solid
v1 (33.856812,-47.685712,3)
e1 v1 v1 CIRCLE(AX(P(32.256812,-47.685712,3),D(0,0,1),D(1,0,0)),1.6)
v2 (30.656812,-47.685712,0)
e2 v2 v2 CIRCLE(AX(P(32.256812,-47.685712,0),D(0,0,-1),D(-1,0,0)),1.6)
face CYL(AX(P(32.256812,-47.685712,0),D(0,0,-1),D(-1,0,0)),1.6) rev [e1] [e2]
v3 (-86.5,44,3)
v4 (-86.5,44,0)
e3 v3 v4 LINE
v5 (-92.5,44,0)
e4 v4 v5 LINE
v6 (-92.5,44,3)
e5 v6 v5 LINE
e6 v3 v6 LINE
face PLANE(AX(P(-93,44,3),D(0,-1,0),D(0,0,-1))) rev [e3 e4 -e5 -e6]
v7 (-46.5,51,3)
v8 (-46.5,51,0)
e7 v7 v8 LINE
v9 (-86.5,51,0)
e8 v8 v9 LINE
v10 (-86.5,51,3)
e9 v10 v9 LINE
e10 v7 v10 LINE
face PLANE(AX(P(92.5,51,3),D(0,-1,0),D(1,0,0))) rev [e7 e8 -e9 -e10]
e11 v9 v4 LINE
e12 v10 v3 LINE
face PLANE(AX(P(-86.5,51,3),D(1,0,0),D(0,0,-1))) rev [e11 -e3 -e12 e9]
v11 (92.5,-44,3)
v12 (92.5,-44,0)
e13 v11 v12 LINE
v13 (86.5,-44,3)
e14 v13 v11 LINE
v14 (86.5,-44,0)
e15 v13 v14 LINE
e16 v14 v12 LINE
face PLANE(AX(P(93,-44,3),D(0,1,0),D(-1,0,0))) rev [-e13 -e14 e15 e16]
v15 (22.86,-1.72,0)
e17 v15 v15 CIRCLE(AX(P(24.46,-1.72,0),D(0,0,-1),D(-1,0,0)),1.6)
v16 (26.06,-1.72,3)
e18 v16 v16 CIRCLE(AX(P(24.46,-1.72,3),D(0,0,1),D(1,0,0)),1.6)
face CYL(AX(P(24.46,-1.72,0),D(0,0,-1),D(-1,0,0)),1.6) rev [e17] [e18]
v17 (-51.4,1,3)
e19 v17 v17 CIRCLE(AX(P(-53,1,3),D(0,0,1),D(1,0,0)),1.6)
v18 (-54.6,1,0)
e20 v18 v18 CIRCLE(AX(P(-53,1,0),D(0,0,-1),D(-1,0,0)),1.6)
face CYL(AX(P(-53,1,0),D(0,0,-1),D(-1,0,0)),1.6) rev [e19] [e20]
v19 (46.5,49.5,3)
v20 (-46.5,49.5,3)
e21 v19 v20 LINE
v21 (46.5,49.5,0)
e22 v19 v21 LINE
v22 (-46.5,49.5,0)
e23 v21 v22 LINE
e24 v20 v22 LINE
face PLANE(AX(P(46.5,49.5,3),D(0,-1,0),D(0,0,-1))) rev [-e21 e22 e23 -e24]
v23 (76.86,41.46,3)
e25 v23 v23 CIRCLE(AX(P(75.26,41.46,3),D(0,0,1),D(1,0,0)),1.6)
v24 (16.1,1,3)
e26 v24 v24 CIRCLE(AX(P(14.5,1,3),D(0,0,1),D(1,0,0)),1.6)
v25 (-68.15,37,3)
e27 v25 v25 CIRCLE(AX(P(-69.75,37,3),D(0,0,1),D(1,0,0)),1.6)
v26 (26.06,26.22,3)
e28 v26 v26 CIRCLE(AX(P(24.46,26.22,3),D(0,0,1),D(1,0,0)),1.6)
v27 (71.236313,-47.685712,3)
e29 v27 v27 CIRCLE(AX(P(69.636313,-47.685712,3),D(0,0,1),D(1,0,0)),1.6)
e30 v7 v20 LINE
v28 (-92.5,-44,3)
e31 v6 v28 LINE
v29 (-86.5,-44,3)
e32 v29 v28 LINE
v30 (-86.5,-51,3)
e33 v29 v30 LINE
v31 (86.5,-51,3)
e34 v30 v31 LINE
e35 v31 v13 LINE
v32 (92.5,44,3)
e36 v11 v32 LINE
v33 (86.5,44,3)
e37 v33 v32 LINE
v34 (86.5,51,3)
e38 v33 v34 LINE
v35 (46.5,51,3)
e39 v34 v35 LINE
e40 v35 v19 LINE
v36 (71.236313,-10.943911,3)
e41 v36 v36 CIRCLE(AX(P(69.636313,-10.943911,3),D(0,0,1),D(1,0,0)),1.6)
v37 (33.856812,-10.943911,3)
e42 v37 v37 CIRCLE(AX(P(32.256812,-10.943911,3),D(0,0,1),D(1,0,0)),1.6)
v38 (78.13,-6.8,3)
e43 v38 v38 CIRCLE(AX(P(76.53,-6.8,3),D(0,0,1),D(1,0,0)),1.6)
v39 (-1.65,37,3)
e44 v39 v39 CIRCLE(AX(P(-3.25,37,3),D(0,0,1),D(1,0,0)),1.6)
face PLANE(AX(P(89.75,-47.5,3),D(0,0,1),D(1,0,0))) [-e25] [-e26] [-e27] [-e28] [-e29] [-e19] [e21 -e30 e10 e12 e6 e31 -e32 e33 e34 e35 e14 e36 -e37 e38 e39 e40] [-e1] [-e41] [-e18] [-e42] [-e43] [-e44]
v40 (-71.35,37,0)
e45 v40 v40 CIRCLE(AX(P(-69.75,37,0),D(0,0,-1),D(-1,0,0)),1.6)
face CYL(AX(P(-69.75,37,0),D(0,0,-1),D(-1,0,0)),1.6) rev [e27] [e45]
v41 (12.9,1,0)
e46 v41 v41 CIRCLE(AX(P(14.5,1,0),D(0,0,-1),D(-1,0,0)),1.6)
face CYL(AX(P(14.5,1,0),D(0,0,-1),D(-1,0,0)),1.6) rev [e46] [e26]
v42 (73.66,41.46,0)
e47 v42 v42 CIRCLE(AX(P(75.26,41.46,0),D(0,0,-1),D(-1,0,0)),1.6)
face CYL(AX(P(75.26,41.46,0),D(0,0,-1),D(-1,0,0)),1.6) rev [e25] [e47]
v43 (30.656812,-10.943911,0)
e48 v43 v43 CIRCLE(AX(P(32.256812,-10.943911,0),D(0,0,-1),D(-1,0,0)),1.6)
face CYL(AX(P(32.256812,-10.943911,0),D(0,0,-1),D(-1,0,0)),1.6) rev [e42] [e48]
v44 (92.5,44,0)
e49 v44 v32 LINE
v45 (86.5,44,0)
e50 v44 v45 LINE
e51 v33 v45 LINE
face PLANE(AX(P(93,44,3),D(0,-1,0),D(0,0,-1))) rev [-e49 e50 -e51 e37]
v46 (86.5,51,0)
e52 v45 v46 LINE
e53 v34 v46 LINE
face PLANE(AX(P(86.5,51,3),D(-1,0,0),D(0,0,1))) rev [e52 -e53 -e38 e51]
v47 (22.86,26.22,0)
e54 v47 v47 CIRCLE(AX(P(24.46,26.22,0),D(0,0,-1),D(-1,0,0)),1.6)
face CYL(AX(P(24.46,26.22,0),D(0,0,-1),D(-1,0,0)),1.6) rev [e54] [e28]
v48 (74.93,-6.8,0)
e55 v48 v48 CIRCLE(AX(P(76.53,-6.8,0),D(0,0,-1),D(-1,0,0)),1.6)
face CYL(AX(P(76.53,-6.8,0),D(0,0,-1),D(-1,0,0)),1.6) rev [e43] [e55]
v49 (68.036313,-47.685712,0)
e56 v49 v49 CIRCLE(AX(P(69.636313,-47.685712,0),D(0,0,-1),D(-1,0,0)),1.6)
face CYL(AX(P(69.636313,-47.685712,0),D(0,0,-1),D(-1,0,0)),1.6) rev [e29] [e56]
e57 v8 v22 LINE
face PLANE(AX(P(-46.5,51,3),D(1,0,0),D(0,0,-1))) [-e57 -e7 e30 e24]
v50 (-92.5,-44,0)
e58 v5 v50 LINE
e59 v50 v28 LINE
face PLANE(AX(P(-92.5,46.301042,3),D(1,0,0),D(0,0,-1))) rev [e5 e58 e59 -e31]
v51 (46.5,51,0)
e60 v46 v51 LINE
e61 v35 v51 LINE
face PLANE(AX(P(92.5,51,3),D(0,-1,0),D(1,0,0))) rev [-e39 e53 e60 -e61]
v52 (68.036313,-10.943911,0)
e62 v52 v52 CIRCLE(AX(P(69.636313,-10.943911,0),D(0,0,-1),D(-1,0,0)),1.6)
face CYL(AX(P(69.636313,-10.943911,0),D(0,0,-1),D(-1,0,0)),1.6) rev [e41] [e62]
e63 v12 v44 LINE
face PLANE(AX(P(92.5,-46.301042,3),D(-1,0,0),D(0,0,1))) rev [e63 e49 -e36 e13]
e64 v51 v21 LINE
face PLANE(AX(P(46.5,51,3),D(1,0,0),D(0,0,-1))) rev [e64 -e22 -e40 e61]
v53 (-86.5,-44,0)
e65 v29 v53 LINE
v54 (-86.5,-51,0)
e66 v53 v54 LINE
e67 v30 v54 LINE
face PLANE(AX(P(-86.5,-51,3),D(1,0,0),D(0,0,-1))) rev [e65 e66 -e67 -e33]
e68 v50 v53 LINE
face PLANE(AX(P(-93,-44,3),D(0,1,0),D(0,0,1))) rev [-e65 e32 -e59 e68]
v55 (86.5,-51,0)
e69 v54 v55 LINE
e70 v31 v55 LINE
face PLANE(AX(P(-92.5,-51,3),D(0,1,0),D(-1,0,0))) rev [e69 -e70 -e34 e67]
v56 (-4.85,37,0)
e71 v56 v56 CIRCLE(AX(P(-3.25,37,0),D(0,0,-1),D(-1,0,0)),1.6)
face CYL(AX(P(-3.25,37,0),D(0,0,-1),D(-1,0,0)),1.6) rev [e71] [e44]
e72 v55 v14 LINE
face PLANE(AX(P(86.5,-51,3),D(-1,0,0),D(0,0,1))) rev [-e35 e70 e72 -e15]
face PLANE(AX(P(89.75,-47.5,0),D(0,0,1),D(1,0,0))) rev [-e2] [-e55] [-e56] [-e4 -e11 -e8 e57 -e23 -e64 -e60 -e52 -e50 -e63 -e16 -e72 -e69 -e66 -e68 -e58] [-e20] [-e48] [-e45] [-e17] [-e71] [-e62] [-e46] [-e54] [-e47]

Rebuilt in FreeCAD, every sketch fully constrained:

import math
import FreeCAD as App
import Part
import Sketcher

V = App.Vector
Q = App.Units.Quantity


def add_polygon(sketch, points):
    """Adds a closed chain of lines whose ends are joined by coincident constraints."""
    first, n = sketch.GeometryCount, len(points)
    for a, b in zip(points, points[1:] + points[:1]):
        sketch.addGeometry(Part.LineSegment(App.Vector(*a, 0), App.Vector(*b, 0)), False)
    for i in range(n):
        sketch.addConstraint(Sketcher.Constraint("Coincident", first + i, 2, first + (i + 1) % n, 1))

doc = App.newDocument("Part")
body = doc.addObject("PartDesign::Body", "Body")

# Sketch on XY plane
sketch1 = body.newObject("Sketcher::SketchObject", "Sketch")
sketch1.AttachmentSupport = (doc.getObject("XY_Plane"), [""])
sketch1.MapMode = "FlatFace"
sketch1.addGeometry([
    Part.LineSegment(V(92.5, -51, 0), V(92.5, -48.7, 0)),  # 0
    Part.ArcOfCircle(Part.Circle(V(89.8, -47.5, 0), V(0, 0, 1), 3), math.radians(24), math.radians(336)),  # 1
    Part.LineSegment(V(92.5, -46.3, 0), V(92.5, 46.3, 0)),  # 2
    Part.ArcOfCircle(Part.Circle(V(89.8, 47.5, 0), V(0, 0, 1), 3), math.radians(24), math.radians(336)),  # 3
    Part.LineSegment(V(92.5, 48.7, 0), V(92.5, 51, 0)),  # 4
    Part.LineSegment(V(92.5, 51, 0), V(-92.5, 51, 0)),  # 5
    Part.LineSegment(V(-92.5, 51, 0), V(-92.5, 48.7, 0)),  # 6
    Part.ArcOfCircle(Part.Circle(V(-89.8, 47.5, 0), V(0, 0, 1), 3), math.radians(-156), math.radians(156)),  # 7
    Part.LineSegment(V(-92.5, 46.3, 0), V(-92.5, -46.3, 0)),  # 8
    Part.ArcOfCircle(Part.Circle(V(-89.8, -47.5, 0), V(0, 0, 1), 3), math.radians(-156), math.radians(156)),  # 9
    Part.LineSegment(V(-92.5, -48.7, 0), V(-92.5, -51, 0)),  # 10
    Part.LineSegment(V(-92.5, -51, 0), V(92.5, -51, 0)),  # 11
], False)
sketch1.addConstraint([
    Sketcher.Constraint("Coincident", 0, 2, 1, 2),
    Sketcher.Constraint("Coincident", 1, 1, 2, 1),
    Sketcher.Constraint("Coincident", 2, 2, 3, 2),
    Sketcher.Constraint("Coincident", 3, 1, 4, 1),
    Sketcher.Constraint("Coincident", 4, 2, 5, 1),
    Sketcher.Constraint("Coincident", 5, 2, 6, 1),
    Sketcher.Constraint("Coincident", 6, 2, 7, 2),
    Sketcher.Constraint("Coincident", 7, 1, 8, 1),
    Sketcher.Constraint("Coincident", 8, 2, 9, 2),
    Sketcher.Constraint("Coincident", 9, 1, 10, 1),
    Sketcher.Constraint("Coincident", 10, 2, 11, 1),
    Sketcher.Constraint("Coincident", 11, 2, 0, 1),
    Sketcher.Constraint("Vertical", 0),
    Sketcher.Constraint("Vertical", 2),
    Sketcher.Constraint("Vertical", 4),
    Sketcher.Constraint("Horizontal", 5),
    Sketcher.Constraint("Vertical", 6),
    Sketcher.Constraint("Vertical", 8),
    Sketcher.Constraint("Vertical", 10),
    Sketcher.Constraint("Horizontal", 11),
    Sketcher.Constraint("Equal", 1, 3),
    Sketcher.Constraint("Equal", 3, 7),
    Sketcher.Constraint("Equal", 7, 9),
    Sketcher.Constraint("Symmetric", 1, 3, 7, 3, -1, 1),
    Sketcher.Constraint("Symmetric", 3, 3, 9, 3, -1, 1),
    Sketcher.Constraint("Symmetric", 4, 2, 10, 2, -1, 1),
    Sketcher.Constraint("Symmetric", 3, 3, 7, 3, -2),
    Sketcher.Constraint("Horizontal", 3, 1, 6, 2),
    Sketcher.Constraint("Horizontal", 2, 2, 7, 1),
    Sketcher.Constraint("Horizontal", 0, 2, 9, 1),
    Sketcher.Constraint("Vertical", 0, 2, 1, 1),
    Sketcher.Constraint("Radius", 1, Q("3 mm")),
    Sketcher.Constraint("DistanceX", 5, 2, 5, 1, Q("185 mm")),
    Sketcher.Constraint("DistanceY", -1, 1, 4, 2, Q("51 mm")),
    Sketcher.Constraint("DistanceY", 1, 3, 3, 3, Q("95 mm")),
    Sketcher.Constraint("DistanceX", 7, 3, 3, 3, Q("179.5 mm")),
])
pad1 = body.newObject("PartDesign::Pad", "Pad")
pad1.Profile = sketch1
pad1.Length = 3

# Sketch on XY plane
sketch2 = body.newObject("Sketcher::SketchObject", "Sketch001")
sketch2.AttachmentSupport = (doc.getObject("XY_Plane"), [""])
sketch2.MapMode = "FlatFace"
sketch2.addGeometry([
    Part.Circle(V(76.5, -6.8, 0), V(0, 0, 1), 1.6),  # 0
    Part.Circle(V(24.5, -1.7, 0), V(0, 0, 1), 1.6),  # 1
    Part.Circle(V(24.5, 26.2, 0), V(0, 0, 1), 1.6),  # 2
    Part.Circle(V(75.3, 41.5, 0), V(0, 0, 1), 1.6),  # 3
    Part.Circle(V(69.6, -47.7, 0), V(0, 0, 1), 1.6),  # 4
    Part.Circle(V(69.6, -10.9, 0), V(0, 0, 1), 1.6),  # 5
    Part.Circle(V(32.3, -10.9, 0), V(0, 0, 1), 1.6),  # 6
    Part.Circle(V(32.3, -47.7, 0), V(0, 0, 1), 1.6),  # 7
    Part.Circle(V(14.5, 1, 0), V(0, 0, 1), 1.6),  # 8
    Part.Circle(V(-53, 1, 0), V(0, 0, 1), 1.6),  # 9
    Part.Circle(V(-3.2, 37, 0), V(0, 0, 1), 1.6),  # 10
    Part.Circle(V(-69.8, 37, 0), V(0, 0, 1), 1.6),  # 11
], False)
sketch2.addConstraint([
    Sketcher.Constraint("Equal", 0, 1),
    Sketcher.Constraint("Equal", 1, 2),
    Sketcher.Constraint("Equal", 2, 3),
    Sketcher.Constraint("Equal", 3, 4),
    Sketcher.Constraint("Equal", 4, 5),
    Sketcher.Constraint("Equal", 5, 6),
    Sketcher.Constraint("Equal", 6, 7),
    Sketcher.Constraint("Equal", 7, 8),
    Sketcher.Constraint("Equal", 8, 9),
    Sketcher.Constraint("Equal", 9, 10),
    Sketcher.Constraint("Equal", 10, 11),
    Sketcher.Constraint("Horizontal", 5, 3, 6, 3),
    Sketcher.Constraint("Horizontal", 4, 3, 7, 3),
    Sketcher.Constraint("Horizontal", 8, 3, 9, 3),
    Sketcher.Constraint("Horizontal", 10, 3, 11, 3),
    Sketcher.Constraint("Vertical", 1, 3, 2, 3),
    Sketcher.Constraint("Vertical", 4, 3, 5, 3),
    Sketcher.Constraint("Vertical", 6, 3, 7, 3),
    Sketcher.Constraint("Diameter", 0, Q("3.2 mm")),
    Sketcher.Constraint("DistanceY", -1, 1, 8, 3, Q("1 mm")),
    Sketcher.Constraint("DistanceX", 9, 3, -1, 1, Q("53 mm")),
    Sketcher.Constraint("DistanceY", -1, 1, 10, 3, Q("37 mm")),
    Sketcher.Constraint("DistanceY", 0, 3, -1, 1, Q("6.8 mm")),
    Sketcher.Constraint("DistanceX", -1, 1, 8, 3, Q("14.5 mm")),
    Sketcher.Constraint("DistanceX", 2, 3, 3, 3, Q("50.8 mm")),
    Sketcher.Constraint("DistanceX", 11, 3, 10, 3, Q("66.5 mm")),
    Sketcher.Constraint("DistanceX", -1, 1, 0, 3, Q("76.53 mm")),
    Sketcher.Constraint("DistanceX", -1, 1, 1, 3, Q("24.46 mm")),
    Sketcher.Constraint("DistanceY", 1, 3, -1, 1, Q("1.72 mm")),
    Sketcher.Constraint("DistanceY", -1, 1, 2, 3, Q("26.22 mm")),
    Sketcher.Constraint("DistanceY", -1, 1, 3, 3, Q("41.46 mm")),
    Sketcher.Constraint("DistanceX", 10, 3, -1, 1, Q("3.25 mm")),
    Sketcher.Constraint("DistanceY", 4, 3, 5, 3, Q("36.7418 mm")),
    Sketcher.Constraint("DistanceX", 6, 3, 5, 3, Q("37.379501 mm")),
    Sketcher.Constraint("DistanceY", 4, 3, -1, 1, Q("47.685712 mm")),
    Sketcher.Constraint("DistanceX", -1, 1, 4, 3, Q("69.636313 mm")),
])
doc.recompute()
hole = body.newObject("PartDesign::Hole", "Hole")
hole.Profile = sketch2
hole.ThreadType = "None"
hole.Diameter = 3.2
hole.DepthType = "ThroughAll"
hole.Reversed = True

# Sketch on XY plane
sketch3 = body.newObject("Sketcher::SketchObject", "Sketch002")
sketch3.AttachmentSupport = (doc.getObject("XY_Plane"), [""])
sketch3.MapMode = "FlatFace"
add_polygon(sketch3, [(93, 51), (93, 44), (86, 44), (86, 51)])  # lines 0-3
add_polygon(sketch3, [(-86, 51), (-86, 44), (-93, 44), (-93, 51)])  # lines 4-7
add_polygon(sketch3, [(-86, -44), (-86, -51), (-93, -51), (-93, -44)])  # lines 8-11
add_polygon(sketch3, [(93, -44), (93, -51), (86, -51), (86, -44)])  # lines 12-15
sketch3.addConstraint([
    Sketcher.Constraint("Vertical", 0),
    Sketcher.Constraint("Horizontal", 1),
    Sketcher.Constraint("Vertical", 2),
    Sketcher.Constraint("Horizontal", 3),
    Sketcher.Constraint("Vertical", 4),
    Sketcher.Constraint("Horizontal", 5),
    Sketcher.Constraint("Vertical", 6),
    Sketcher.Constraint("Horizontal", 7),
    Sketcher.Constraint("Vertical", 8),
    Sketcher.Constraint("Horizontal", 9),
    Sketcher.Constraint("Vertical", 10),
    Sketcher.Constraint("Horizontal", 11),
    Sketcher.Constraint("Vertical", 12),
    Sketcher.Constraint("Horizontal", 13),
    Sketcher.Constraint("Vertical", 14),
    Sketcher.Constraint("Horizontal", 15),
    Sketcher.Constraint("Symmetric", 2, 2, 8, 2, -1, 1),
    Sketcher.Constraint("Symmetric", 0, 2, 10, 2, -1, 1),
    Sketcher.Constraint("Symmetric", 6, 2, 12, 2, -1, 1),
    Sketcher.Constraint("Symmetric", 4, 2, 14, 2, -1, 1),
    Sketcher.Constraint("Symmetric", 1, 2, 4, 2, -2),
    Sketcher.Constraint("Symmetric", 3, 2, 6, 2, -2),
    Sketcher.Constraint("DistanceY", 0, 2, 0, 1, Q("7 mm")),
    Sketcher.Constraint("DistanceX", 1, 2, 1, 1, Q("6.5 mm")),
    Sketcher.Constraint("DistanceX", -1, 1, 0, 2, Q("93 mm")),
    Sketcher.Constraint("DistanceY", -1, 1, 0, 2, Q("44 mm")),
])
pocket1 = body.newObject("PartDesign::Pocket", "Pocket")
pocket1.Profile = sketch3
pocket1.Type = "ThroughAll"
pocket1.Reversed = True

# Sketch on XY plane
sketch4 = body.newObject("Sketcher::SketchObject", "Sketch003")
sketch4.AttachmentSupport = (doc.getObject("XY_Plane"), [""])
sketch4.MapMode = "FlatFace"
add_polygon(sketch4, [(46.5, 51), (46.5, 49.5), (-46.5, 49.5), (-46.5, 51)])  # lines 0-3
sketch4.addConstraint([
    Sketcher.Constraint("Vertical", 0),
    Sketcher.Constraint("Horizontal", 1),
    Sketcher.Constraint("Vertical", 2),
    Sketcher.Constraint("Horizontal", 3),
    Sketcher.Constraint("DistanceX", 1, 2, 1, 1, Q("93 mm")),
    Sketcher.Constraint("DistanceY", 0, 2, 0, 1, Q("1.5 mm")),
    Sketcher.Constraint("DistanceY", -1, 1, 2, 2, Q("51 mm")),
    Sketcher.Constraint("DistanceX", -1, 1, 0, 2, Q("46.5 mm")),
])
pocket2 = body.newObject("PartDesign::Pocket", "Pocket001")
pocket2.Profile = sketch4
pocket2.Type = "ThroughAll"
pocket2.Reversed = True

doc.recompute()
